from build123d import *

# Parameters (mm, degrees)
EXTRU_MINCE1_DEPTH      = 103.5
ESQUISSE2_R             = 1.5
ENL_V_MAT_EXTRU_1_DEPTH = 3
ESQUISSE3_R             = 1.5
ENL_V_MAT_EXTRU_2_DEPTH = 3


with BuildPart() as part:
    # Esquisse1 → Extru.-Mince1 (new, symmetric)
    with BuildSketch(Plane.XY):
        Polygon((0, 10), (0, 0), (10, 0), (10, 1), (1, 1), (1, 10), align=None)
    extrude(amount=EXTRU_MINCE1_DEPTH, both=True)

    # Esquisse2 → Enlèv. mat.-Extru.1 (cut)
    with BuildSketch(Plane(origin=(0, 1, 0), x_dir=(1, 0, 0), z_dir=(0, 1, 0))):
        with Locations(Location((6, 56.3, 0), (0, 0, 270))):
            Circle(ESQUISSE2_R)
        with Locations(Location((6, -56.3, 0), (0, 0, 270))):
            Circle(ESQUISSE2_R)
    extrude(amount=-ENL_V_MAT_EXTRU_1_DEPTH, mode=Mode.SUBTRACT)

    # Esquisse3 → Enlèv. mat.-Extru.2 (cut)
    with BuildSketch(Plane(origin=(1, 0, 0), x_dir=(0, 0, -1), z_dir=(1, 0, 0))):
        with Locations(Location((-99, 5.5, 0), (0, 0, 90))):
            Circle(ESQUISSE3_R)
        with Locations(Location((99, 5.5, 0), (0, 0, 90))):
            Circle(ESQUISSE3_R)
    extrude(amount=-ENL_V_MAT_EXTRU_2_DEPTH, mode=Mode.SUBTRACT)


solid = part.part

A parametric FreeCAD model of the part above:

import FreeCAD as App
import Part
import Sketcher
from FreeCAD import Vector

doc = App.newDocument("Part")
params = doc.addObject("Spreadsheet::Sheet", "Params")
for row, (alias, value) in enumerate([
    ("sketch1_width", "10 mm"),
    ("sketch1_width2", "9 mm"),
    ("pad1_length", "207 mm"),
    ("sketch2_diameter", "3 mm"),
    ("pocket1_length", "3 mm"),
    ("sketch3_diameter", "3 mm"),
    ("pocket2_length", "3 mm"),
], start=1):
    params.set(f"A{row}", alias)
    params.set(f"B{row}", "=" + value)
    params.setAlias(f"B{row}", alias)

body = doc.addObject("PartDesign::Body", "Body")

# Sketch on XY plane
sketch1 = doc.addObject("Sketcher::SketchObject", "Sketch")
body.addObject(sketch1)
sketch1.AttachmentSupport = (doc.XY_Plane, [""])
sketch1.MapMode = "FlatFace"
sketch1.addGeometry([
    Part.LineSegment(Vector(0, 10, 0), Vector(0, 0, 0)),  # 0
    Part.LineSegment(Vector(0, 0, 0), Vector(10, 0, 0)),  # 1
    Part.LineSegment(Vector(10, 0, 0), Vector(10, 1, 0)),  # 2
    Part.LineSegment(Vector(10, 1, 0), Vector(1, 1, 0)),  # 3
    Part.LineSegment(Vector(1, 1, 0), Vector(1, 10, 0)),  # 4
    Part.LineSegment(Vector(1, 10, 0), Vector(0, 10, 0)),  # 5
], False)
sketch1.addConstraint([
    Sketcher.Constraint("Coincident", 0, 2, 1, 1),
    Sketcher.Constraint("Coincident", 1, 2, 2, 1),
    Sketcher.Constraint("Coincident", 2, 2, 3, 1),
    Sketcher.Constraint("Coincident", 3, 2, 4, 1),
    Sketcher.Constraint("Coincident", 4, 2, 5, 1),
    Sketcher.Constraint("Coincident", 5, 2, 0, 1),
    Sketcher.Constraint("Vertical", 0),
    Sketcher.Constraint("Horizontal", 1),
    Sketcher.Constraint("Vertical", 2),
    Sketcher.Constraint("Horizontal", 3),
    Sketcher.Constraint("Vertical", 4),
    Sketcher.Constraint("Horizontal", 5),
    Sketcher.Constraint("Coincident", 0, 2, -1, 1),
    Sketcher.Constraint("Equal", 1, 0),
    Sketcher.Constraint("Equal", 5, 2),
    Sketcher.Constraint("DistanceX", 1, 1, 1, 2, 10.0),
    Sketcher.Constraint("DistanceX", 3, 2, 3, 1, 9.0),
])
sketch1.setExpression("Constraints[15]", "Params.sketch1_width")
sketch1.setExpression("Constraints[16]", "Params.sketch1_width2")
pad1 = doc.addObject("PartDesign::Pad", "Pad")
body.addObject(pad1)
pad1.Profile = sketch1
pad1.setExpression("Length", "Params.pad1_length")
pad1.Midplane = True

# Sketch on XZ plane
sketch2 = doc.addObject("Sketcher::SketchObject", "Sketch001")
body.addObject(sketch2)
sketch2.AttachmentSupport = (doc.XZ_Plane, [""])
sketch2.MapMode = "FlatFace"
sketch2.AttachmentOffset = App.Placement(Vector(0, 0, -1), App.Rotation())
sketch2.addGeometry([
    Part.Circle(Vector(6, -56.3, 0), Vector(0, 0, 1), 1.5),
    Part.Circle(Vector(6, 56.3, 0), Vector(0, 0, 1), 1.5),
], False)
sketch2.addConstraint([
    Sketcher.Constraint("Equal", 0, 1),
    Sketcher.Constraint("Symmetric", 0, 3, 1, 3, -1),
    Sketcher.Constraint("Diameter", 0, 3.0),
    Sketcher.Constraint("DistanceX", -1, 1, 0, 3, 6.0),
    Sketcher.Constraint("DistanceY", 0, 3, -1, 1, 56.3),
])
sketch2.setExpression("Constraints[2]", "Params.sketch2_diameter")
pocket1 = doc.addObject("PartDesign::Pocket", "Pocket")
body.addObject(pocket1)
pocket1.Profile = sketch2
pocket1.setExpression("Length", "Params.pocket1_length")
pocket1.Reversed = True

# Sketch on YZ plane
sketch3 = doc.addObject("Sketcher::SketchObject", "Sketch002")
body.addObject(sketch3)
sketch3.AttachmentSupport = (doc.YZ_Plane, [""])
sketch3.MapMode = "FlatFace"
sketch3.AttachmentOffset = App.Placement(Vector(0, 0, 1), App.Rotation())
sketch3.addGeometry([
    Part.Circle(Vector(5.5, 99, 0), Vector(0, 0, 1), 1.5),
    Part.Circle(Vector(5.5, -99, 0), Vector(0, 0, 1), 1.5),
], False)
sketch3.addConstraint([
    Sketcher.Constraint("Equal", 0, 1),
    Sketcher.Constraint("Symmetric", 0, 3, 1, 3, -1),
    Sketcher.Constraint("Diameter", 0, 3.0),
    Sketcher.Constraint("DistanceY", -1, 1, 0, 3, 99.0),
    Sketcher.Constraint("DistanceX", -1, 1, 0, 3, 5.5),
])
sketch3.setExpression("Constraints[2]", "Params.sketch3_diameter")
pocket2 = doc.addObject("PartDesign::Pocket", "Pocket001")
body.addObject(pocket2)
pocket2.Profile = sketch3
pocket2.setExpression("Length", "Params.pocket2_length")

doc.recompute()
